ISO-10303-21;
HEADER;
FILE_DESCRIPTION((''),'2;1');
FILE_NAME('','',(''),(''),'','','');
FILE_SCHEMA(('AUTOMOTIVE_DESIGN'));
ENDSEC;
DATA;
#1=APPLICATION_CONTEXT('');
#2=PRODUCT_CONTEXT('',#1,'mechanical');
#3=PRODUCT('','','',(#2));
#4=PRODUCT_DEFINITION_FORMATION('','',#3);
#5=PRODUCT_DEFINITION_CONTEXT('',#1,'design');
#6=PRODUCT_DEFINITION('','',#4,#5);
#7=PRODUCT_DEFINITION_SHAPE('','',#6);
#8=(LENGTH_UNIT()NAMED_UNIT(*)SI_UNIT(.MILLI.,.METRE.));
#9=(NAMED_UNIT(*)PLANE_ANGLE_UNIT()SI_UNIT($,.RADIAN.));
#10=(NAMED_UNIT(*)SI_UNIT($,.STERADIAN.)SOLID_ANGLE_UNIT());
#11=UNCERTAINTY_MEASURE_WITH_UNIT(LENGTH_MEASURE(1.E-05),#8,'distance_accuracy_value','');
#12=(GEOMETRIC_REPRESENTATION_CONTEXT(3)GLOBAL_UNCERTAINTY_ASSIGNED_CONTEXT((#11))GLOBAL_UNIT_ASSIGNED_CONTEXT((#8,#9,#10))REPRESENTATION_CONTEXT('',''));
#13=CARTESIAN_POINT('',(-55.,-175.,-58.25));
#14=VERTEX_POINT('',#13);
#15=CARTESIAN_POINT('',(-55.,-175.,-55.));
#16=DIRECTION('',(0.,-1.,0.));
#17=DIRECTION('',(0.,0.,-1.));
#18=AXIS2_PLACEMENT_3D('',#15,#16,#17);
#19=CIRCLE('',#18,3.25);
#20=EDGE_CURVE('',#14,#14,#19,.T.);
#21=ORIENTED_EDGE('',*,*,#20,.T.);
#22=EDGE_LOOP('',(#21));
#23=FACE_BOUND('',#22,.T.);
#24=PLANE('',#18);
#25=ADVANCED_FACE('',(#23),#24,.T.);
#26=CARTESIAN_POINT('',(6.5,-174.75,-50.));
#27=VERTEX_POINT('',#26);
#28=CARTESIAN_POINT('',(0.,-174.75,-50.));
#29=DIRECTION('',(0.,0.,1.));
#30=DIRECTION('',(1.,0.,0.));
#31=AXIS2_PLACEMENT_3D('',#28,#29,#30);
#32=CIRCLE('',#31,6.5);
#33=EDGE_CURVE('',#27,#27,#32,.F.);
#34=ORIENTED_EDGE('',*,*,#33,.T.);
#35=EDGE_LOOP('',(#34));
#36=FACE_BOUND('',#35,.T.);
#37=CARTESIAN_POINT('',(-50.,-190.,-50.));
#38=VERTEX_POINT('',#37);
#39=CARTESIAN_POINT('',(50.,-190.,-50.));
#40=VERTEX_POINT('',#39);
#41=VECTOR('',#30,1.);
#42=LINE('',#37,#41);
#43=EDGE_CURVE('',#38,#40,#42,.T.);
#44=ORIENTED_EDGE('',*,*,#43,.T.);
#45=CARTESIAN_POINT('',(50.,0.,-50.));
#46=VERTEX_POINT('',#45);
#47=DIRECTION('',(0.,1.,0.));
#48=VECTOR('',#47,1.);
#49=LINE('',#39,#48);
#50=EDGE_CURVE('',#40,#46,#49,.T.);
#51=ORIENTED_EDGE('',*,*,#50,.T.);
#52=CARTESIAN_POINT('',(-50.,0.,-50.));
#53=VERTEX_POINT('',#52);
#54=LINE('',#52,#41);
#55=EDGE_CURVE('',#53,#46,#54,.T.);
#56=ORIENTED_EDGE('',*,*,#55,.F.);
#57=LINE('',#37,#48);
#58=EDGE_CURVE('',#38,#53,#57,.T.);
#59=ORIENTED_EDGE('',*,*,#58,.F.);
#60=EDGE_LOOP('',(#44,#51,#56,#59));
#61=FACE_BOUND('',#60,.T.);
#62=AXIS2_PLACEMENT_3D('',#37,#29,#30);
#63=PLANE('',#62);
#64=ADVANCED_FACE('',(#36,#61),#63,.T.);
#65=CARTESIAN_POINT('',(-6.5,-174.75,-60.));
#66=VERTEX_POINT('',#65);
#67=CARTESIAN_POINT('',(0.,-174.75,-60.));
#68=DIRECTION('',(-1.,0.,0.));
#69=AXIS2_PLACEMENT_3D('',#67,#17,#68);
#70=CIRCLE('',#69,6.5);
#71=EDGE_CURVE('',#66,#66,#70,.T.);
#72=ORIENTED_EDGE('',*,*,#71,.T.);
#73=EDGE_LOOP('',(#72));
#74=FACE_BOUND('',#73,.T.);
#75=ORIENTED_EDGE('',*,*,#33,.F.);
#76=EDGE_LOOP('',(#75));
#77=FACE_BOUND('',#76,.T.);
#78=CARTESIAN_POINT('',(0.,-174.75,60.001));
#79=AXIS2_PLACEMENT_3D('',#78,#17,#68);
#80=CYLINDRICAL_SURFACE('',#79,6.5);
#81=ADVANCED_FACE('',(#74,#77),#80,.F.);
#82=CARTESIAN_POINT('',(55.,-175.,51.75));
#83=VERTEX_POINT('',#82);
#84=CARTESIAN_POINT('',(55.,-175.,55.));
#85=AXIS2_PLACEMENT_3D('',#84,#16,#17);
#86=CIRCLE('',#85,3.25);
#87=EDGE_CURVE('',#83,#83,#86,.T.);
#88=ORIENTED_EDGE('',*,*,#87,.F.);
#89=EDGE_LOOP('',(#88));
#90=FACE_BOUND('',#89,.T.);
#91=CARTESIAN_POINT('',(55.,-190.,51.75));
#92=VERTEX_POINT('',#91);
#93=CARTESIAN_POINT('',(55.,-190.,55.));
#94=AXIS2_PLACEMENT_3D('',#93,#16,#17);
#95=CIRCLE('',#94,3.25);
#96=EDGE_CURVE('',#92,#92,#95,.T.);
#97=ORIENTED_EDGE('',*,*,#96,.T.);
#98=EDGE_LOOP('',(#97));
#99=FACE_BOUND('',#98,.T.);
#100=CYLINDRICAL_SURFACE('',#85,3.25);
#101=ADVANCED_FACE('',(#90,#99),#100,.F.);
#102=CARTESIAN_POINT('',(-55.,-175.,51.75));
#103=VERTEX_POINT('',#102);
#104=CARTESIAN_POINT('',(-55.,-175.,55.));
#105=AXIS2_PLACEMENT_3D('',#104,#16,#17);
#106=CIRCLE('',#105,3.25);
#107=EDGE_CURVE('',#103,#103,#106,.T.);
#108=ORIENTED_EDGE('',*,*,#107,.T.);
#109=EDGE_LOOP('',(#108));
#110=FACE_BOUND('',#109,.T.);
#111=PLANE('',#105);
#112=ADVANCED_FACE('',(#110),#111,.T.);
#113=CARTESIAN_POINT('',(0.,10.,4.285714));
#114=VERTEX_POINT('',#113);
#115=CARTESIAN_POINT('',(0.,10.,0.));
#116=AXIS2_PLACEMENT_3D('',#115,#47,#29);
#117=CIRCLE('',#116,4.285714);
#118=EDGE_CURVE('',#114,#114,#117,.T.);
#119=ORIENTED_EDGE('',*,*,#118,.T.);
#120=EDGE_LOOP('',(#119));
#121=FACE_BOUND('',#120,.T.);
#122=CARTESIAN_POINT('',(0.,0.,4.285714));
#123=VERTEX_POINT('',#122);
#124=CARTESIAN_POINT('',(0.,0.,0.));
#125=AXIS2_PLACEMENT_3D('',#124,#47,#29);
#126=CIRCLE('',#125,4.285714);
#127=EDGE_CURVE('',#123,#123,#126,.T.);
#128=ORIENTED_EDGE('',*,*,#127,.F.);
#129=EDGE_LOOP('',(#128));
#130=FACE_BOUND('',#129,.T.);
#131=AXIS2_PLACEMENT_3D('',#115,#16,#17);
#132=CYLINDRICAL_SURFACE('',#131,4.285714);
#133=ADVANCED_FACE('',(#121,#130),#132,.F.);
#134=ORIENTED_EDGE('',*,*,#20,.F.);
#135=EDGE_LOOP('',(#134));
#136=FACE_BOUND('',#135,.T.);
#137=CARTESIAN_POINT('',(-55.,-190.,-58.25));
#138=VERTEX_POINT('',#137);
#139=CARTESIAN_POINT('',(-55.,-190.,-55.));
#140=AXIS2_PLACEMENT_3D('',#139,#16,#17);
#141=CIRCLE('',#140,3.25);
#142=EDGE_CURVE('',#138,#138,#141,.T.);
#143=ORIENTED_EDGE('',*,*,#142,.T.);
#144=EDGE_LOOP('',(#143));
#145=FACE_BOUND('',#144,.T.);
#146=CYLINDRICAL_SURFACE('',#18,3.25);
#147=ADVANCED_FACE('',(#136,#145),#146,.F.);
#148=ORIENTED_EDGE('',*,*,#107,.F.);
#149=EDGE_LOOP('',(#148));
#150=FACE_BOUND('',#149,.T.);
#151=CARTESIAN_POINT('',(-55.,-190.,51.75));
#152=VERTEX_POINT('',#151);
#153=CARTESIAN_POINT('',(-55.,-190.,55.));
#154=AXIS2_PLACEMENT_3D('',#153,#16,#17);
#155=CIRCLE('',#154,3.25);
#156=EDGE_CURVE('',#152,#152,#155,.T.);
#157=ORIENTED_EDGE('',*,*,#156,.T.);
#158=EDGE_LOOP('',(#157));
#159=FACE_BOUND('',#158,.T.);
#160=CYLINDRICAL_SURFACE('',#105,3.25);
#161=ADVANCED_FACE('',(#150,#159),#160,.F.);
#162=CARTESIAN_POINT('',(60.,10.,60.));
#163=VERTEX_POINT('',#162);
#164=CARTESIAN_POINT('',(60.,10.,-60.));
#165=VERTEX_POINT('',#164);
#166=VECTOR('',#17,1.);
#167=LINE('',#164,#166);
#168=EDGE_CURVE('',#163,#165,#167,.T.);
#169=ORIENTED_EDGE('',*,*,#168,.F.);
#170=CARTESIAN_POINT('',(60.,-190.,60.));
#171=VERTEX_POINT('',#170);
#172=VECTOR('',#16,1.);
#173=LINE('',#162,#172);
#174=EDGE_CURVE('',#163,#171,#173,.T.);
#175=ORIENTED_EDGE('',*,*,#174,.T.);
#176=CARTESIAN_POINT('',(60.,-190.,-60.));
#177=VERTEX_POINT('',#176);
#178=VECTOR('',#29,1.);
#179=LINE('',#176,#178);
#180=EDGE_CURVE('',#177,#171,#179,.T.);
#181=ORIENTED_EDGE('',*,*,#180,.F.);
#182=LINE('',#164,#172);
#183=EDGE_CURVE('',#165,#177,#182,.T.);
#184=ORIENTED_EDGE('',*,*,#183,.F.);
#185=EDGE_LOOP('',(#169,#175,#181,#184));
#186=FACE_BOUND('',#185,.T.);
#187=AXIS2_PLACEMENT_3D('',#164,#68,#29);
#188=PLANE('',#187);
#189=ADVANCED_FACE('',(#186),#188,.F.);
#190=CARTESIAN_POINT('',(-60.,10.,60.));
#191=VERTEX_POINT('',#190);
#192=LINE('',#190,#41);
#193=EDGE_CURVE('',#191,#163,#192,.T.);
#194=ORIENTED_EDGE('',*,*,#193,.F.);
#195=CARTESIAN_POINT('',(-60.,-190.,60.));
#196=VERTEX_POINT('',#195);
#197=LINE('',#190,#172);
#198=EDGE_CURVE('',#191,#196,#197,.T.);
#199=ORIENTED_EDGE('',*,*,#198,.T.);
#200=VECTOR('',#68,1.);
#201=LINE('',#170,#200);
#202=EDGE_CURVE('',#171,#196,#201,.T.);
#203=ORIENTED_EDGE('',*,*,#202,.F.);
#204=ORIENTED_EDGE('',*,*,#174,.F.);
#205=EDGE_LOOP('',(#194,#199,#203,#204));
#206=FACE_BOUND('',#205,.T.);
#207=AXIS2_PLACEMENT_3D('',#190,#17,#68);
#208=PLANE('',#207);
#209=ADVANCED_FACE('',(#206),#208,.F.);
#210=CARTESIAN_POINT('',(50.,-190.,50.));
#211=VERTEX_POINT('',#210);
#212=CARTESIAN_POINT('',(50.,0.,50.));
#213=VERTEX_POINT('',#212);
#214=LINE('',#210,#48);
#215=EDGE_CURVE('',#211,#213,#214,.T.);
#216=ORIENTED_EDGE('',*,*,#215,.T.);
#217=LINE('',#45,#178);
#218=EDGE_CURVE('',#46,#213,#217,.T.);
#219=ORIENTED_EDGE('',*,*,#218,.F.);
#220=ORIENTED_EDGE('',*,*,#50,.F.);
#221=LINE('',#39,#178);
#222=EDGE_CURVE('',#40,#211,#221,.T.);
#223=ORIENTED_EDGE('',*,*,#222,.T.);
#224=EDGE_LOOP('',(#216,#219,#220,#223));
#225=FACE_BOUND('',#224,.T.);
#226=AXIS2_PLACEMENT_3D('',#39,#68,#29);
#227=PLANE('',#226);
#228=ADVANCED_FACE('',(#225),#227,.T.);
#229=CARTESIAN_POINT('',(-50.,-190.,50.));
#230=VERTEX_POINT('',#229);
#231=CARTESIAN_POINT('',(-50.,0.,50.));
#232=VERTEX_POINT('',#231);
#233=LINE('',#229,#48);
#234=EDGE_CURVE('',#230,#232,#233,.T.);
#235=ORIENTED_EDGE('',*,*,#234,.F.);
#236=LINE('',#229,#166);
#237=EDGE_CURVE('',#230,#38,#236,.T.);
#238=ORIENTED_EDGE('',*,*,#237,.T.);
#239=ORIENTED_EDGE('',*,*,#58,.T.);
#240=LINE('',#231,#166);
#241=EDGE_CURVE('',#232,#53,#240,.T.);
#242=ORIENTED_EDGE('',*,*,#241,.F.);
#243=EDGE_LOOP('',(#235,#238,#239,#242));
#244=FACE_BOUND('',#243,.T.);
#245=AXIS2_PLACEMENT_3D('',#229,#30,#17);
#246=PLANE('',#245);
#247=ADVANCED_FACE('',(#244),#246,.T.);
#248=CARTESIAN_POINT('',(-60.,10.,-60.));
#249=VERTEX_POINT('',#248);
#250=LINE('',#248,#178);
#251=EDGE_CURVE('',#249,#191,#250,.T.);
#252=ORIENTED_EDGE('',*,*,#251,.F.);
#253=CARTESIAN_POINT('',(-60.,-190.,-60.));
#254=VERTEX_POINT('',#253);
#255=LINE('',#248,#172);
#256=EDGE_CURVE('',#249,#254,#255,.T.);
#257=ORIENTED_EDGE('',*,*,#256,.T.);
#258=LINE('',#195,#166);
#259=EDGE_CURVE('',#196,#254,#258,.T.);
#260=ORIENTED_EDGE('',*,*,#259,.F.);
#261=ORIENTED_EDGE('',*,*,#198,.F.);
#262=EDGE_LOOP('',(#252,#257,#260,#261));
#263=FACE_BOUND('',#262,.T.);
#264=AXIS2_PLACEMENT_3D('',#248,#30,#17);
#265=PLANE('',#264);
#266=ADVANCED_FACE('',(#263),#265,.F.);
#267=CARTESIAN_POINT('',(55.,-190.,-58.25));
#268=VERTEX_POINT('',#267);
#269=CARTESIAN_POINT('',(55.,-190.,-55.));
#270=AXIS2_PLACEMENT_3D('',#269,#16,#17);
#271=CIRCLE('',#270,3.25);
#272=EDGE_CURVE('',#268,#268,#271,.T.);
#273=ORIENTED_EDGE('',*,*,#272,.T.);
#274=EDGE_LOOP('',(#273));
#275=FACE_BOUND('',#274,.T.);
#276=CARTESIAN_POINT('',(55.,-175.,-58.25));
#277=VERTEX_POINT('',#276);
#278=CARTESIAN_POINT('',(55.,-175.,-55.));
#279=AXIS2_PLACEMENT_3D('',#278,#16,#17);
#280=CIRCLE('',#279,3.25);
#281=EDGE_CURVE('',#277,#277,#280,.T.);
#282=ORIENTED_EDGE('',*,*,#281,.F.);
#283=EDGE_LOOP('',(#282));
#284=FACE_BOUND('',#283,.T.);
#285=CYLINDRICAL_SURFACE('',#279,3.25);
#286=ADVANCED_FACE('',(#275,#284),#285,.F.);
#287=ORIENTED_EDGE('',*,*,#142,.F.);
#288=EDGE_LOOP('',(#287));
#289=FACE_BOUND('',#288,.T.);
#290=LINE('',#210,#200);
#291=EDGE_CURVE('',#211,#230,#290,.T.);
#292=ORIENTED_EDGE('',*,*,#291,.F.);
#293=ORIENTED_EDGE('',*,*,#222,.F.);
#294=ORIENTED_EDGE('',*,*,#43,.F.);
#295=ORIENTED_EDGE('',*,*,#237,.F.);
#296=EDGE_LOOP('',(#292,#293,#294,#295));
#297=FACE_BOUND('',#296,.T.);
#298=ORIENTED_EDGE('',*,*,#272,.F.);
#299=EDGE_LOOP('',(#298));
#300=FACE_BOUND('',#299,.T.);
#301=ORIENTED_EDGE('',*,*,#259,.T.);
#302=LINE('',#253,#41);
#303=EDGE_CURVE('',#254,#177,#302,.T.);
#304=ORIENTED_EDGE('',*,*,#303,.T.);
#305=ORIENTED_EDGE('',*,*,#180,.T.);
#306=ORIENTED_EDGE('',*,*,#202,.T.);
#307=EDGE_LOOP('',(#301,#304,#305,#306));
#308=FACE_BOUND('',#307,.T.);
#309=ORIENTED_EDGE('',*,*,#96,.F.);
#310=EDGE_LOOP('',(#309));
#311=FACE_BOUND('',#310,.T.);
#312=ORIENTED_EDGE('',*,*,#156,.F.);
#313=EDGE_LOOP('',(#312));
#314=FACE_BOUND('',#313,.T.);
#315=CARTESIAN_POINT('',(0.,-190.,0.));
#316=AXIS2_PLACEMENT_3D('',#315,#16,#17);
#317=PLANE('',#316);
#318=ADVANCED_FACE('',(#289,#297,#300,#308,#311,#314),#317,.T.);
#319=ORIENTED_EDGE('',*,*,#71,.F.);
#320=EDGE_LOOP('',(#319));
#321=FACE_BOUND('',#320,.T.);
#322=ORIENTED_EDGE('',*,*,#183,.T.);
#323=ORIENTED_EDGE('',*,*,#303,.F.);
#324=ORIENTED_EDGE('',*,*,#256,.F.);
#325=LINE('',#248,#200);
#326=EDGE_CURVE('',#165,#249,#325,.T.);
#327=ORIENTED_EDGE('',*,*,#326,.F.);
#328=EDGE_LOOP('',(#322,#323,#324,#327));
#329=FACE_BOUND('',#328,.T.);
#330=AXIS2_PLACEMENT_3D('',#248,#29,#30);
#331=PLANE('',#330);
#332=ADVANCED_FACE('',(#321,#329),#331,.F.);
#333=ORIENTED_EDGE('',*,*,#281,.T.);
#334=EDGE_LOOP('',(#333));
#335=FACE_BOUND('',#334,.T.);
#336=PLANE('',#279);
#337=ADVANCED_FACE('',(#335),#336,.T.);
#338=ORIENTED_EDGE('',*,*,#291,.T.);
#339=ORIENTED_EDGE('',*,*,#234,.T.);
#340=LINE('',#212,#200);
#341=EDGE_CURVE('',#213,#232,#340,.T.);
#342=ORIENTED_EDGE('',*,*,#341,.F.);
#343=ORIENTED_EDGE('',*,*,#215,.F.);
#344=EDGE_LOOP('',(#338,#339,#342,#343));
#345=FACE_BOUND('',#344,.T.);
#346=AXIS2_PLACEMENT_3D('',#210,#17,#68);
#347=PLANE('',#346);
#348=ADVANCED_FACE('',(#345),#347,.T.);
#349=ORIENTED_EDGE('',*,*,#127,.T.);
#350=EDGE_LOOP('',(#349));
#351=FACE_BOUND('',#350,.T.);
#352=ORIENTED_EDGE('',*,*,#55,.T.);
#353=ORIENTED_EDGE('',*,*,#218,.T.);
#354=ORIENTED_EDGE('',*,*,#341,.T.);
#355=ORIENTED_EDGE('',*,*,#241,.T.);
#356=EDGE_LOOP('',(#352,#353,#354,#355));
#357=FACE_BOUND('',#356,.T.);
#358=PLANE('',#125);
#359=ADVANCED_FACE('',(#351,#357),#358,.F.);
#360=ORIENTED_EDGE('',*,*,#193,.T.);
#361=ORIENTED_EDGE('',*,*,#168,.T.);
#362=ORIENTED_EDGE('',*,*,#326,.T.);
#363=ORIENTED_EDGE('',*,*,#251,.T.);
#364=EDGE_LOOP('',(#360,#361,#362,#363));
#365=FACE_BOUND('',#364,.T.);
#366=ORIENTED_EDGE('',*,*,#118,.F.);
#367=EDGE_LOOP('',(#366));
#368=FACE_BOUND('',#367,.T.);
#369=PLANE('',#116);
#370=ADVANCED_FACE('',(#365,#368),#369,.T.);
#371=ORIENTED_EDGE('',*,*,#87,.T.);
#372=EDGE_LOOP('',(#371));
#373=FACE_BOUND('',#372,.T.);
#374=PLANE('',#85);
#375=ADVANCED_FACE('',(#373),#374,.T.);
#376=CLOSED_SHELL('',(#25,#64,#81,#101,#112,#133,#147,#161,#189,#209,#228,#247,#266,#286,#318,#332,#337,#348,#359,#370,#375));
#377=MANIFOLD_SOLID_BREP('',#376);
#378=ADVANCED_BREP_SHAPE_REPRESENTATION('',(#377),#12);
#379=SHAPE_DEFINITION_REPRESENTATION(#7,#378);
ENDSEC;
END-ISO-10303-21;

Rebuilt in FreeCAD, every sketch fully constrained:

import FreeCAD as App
import Part
import Sketcher

V = App.Vector
Q = App.Units.Quantity


def add_polygon(sketch, points):
    """Adds a closed chain of lines whose ends are joined by coincident constraints."""
    first, n = sketch.GeometryCount, len(points)
    for a, b in zip(points, points[1:] + points[:1]):
        sketch.addGeometry(Part.LineSegment(App.Vector(*a, 0), App.Vector(*b, 0)), False)
    for i in range(n):
        sketch.addConstraint(Sketcher.Constraint("Coincident", first + i, 2, first + (i + 1) % n, 1))

doc = App.newDocument("Part")
params = doc.addObject("Spreadsheet::Sheet", "Params")
for row, (alias, value) in enumerate([
    ("sketch1_width", "120 mm"),
    ("pad1_length", "10 mm"),
    ("sketch2_width", "120 mm"),
    ("sketch2_width2", "100 mm"),
    ("pad2_length", "190 mm"),
    ("sketch3_diameter", "6.5 mm"),
    ("pocket1_length", "15 mm"),
    ("sketch4_diameter", "13 mm"),
], start=1):
    params.set(f"A{row}", alias)
    params.set(f"B{row}", "=" + value)
    params.setAlias(f"B{row}", alias)

body = doc.addObject("PartDesign::Body", "Body")

sketch1 = body.newObject("Sketcher::SketchObject", "Sketch")
sketch1.AttachmentSupport = (doc.getObject("XZ_Plane"), [""])
sketch1.MapMode = "FlatFace"
add_polygon(sketch1, [(-60, -60), (-60, 60), (60, 60), (60, -60)])
sketch1.addGeometry(Part.Circle(V(0, 0, 0), V(0, 0, 1), 4.3), False)
sketch1.addConstraint([
    Sketcher.Constraint("Vertical", 0),
    Sketcher.Constraint("Horizontal", 1),
    Sketcher.Constraint("Vertical", 2),
    Sketcher.Constraint("Horizontal", 3),
    Sketcher.Constraint("Coincident", 4, 3, -1, 1),
    Sketcher.Constraint("Symmetric", 0, 2, 2, 2, -1, 1),
    Sketcher.Constraint("Equal", 3, 0),
    Sketcher.Constraint("DistanceX", 1, 1, 1, 2, Q("120 mm")),
    Sketcher.Constraint("Diameter", 4, Q("8.571429 mm")),
])
sketch1.setExpression("Constraints[11]", "Params.sketch1_width")
pad1 = body.newObject("PartDesign::Pad", "Pad")
pad1.Profile = sketch1
pad1.setExpression("Length", "Params.pad1_length")
pad1.Reversed = True

sketch2 = body.newObject("Sketcher::SketchObject", "Sketch001")
sketch2.AttachmentSupport = (doc.getObject("XZ_Plane"), [""])
sketch2.MapMode = "FlatFace"
add_polygon(sketch2, [(-60, 60), (-60, -60), (60, -60), (60, 60)])
add_polygon(sketch2, [(50, -50), (-50, -50), (-50, 50), (50, 50)])
sketch2.addConstraint([
    Sketcher.Constraint("Vertical", 0),
    Sketcher.Constraint("Horizontal", 1),
    Sketcher.Constraint("Vertical", 2),
    Sketcher.Constraint("Horizontal", 3),
    Sketcher.Constraint("Horizontal", 4),
    Sketcher.Constraint("Vertical", 5),
    Sketcher.Constraint("Horizontal", 6),
    Sketcher.Constraint("Vertical", 7),
    Sketcher.Constraint("Symmetric", 0, 2, 2, 2, -1, 1),
    Sketcher.Constraint("Symmetric", 4, 2, 6, 2, -1, 1),
    Sketcher.Constraint("Equal", 3, 0),
    Sketcher.Constraint("Equal", 6, 5),
    Sketcher.Constraint("DistanceX", 1, 1, 1, 2, Q("120 mm")),
    Sketcher.Constraint("DistanceX", 4, 2, 4, 1, Q("100 mm")),
])
sketch2.setExpression("Constraints[20]", "Params.sketch2_width")
sketch2.setExpression("Constraints[21]", "Params.sketch2_width2")
pad2 = body.newObject("PartDesign::Pad", "Pad001")
pad2.Profile = sketch2
pad2.setExpression("Length", "Params.pad2_length")

sketch3 = body.newObject("Sketcher::SketchObject", "Sketch002")
sketch3.AttachmentSupport = (doc.getObject("XZ_Plane"), [""])
sketch3.MapMode = "FlatFace"
sketch3.AttachmentOffset = App.Placement(V(0, 0, 190), App.Rotation())
sketch3.addGeometry([
    Part.Circle(V(-55, -55, 0), V(0, 0, 1), 3.2),
    Part.Circle(V(55, 55, 0), V(0, 0, 1), 3.2),
    Part.Circle(V(-55, 55, 0), V(0, 0, 1), 3.2),
    Part.Circle(V(55, -55, 0), V(0, 0, 1), 3.2),
], False)
sketch3.addConstraint([
    Sketcher.Constraint("Equal", 0, 1),
    Sketcher.Constraint("Equal", 1, 2),
    Sketcher.Constraint("Equal", 2, 3),
    Sketcher.Constraint("Symmetric", 0, 3, 1, 3, -1, 1),
    Sketcher.Constraint("Symmetric", 2, 3, 3, 3, -1, 1),
    Sketcher.Constraint("Symmetric", 1, 3, 2, 3, -2),
    Sketcher.Constraint("Diameter", 0, Q("6.5 mm")),
    Sketcher.Constraint("DistanceX", 0, 3, -1, 1, Q("55 mm")),
    Sketcher.Constraint("DistanceY", 0, 3, -1, 1, Q("55 mm")),
])
sketch3.setExpression("Constraints[6]", "Params.sketch3_diameter")
pocket1 = body.newObject("PartDesign::Pocket", "Pocket")
pocket1.Profile = sketch3
pocket1.setExpression("Length", "Params.pocket1_length")

sketch4 = body.newObject("Sketcher::SketchObject", "Sketch003")
sketch4.AttachmentSupport = (doc.getObject("XY_Plane"), [""])
sketch4.MapMode = "FlatFace"
sketch4.AttachmentOffset = App.Placement(V(0, 0, -60), App.Rotation())
sketch4.addGeometry(Part.Circle(V(0, -175, 0), V(0, 0, 1), 6), False)
sketch4.addConstraint([
    Sketcher.Constraint("PointOnObject", 0, 3, -2),
    Sketcher.Constraint("Diameter", 0, Q("13 mm")),
    Sketcher.Constraint("DistanceY", 0, 3, -1, 1, Q("174.75 mm")),
])
sketch4.setExpression("Constraints[1]", "Params.sketch4_diameter")
pocket2 = body.newObject("PartDesign::Pocket", "Pocket001")
pocket2.Profile = sketch4
pocket2.Type = "UpToFirst"
pocket2.Reversed = True

doc.recompute()
